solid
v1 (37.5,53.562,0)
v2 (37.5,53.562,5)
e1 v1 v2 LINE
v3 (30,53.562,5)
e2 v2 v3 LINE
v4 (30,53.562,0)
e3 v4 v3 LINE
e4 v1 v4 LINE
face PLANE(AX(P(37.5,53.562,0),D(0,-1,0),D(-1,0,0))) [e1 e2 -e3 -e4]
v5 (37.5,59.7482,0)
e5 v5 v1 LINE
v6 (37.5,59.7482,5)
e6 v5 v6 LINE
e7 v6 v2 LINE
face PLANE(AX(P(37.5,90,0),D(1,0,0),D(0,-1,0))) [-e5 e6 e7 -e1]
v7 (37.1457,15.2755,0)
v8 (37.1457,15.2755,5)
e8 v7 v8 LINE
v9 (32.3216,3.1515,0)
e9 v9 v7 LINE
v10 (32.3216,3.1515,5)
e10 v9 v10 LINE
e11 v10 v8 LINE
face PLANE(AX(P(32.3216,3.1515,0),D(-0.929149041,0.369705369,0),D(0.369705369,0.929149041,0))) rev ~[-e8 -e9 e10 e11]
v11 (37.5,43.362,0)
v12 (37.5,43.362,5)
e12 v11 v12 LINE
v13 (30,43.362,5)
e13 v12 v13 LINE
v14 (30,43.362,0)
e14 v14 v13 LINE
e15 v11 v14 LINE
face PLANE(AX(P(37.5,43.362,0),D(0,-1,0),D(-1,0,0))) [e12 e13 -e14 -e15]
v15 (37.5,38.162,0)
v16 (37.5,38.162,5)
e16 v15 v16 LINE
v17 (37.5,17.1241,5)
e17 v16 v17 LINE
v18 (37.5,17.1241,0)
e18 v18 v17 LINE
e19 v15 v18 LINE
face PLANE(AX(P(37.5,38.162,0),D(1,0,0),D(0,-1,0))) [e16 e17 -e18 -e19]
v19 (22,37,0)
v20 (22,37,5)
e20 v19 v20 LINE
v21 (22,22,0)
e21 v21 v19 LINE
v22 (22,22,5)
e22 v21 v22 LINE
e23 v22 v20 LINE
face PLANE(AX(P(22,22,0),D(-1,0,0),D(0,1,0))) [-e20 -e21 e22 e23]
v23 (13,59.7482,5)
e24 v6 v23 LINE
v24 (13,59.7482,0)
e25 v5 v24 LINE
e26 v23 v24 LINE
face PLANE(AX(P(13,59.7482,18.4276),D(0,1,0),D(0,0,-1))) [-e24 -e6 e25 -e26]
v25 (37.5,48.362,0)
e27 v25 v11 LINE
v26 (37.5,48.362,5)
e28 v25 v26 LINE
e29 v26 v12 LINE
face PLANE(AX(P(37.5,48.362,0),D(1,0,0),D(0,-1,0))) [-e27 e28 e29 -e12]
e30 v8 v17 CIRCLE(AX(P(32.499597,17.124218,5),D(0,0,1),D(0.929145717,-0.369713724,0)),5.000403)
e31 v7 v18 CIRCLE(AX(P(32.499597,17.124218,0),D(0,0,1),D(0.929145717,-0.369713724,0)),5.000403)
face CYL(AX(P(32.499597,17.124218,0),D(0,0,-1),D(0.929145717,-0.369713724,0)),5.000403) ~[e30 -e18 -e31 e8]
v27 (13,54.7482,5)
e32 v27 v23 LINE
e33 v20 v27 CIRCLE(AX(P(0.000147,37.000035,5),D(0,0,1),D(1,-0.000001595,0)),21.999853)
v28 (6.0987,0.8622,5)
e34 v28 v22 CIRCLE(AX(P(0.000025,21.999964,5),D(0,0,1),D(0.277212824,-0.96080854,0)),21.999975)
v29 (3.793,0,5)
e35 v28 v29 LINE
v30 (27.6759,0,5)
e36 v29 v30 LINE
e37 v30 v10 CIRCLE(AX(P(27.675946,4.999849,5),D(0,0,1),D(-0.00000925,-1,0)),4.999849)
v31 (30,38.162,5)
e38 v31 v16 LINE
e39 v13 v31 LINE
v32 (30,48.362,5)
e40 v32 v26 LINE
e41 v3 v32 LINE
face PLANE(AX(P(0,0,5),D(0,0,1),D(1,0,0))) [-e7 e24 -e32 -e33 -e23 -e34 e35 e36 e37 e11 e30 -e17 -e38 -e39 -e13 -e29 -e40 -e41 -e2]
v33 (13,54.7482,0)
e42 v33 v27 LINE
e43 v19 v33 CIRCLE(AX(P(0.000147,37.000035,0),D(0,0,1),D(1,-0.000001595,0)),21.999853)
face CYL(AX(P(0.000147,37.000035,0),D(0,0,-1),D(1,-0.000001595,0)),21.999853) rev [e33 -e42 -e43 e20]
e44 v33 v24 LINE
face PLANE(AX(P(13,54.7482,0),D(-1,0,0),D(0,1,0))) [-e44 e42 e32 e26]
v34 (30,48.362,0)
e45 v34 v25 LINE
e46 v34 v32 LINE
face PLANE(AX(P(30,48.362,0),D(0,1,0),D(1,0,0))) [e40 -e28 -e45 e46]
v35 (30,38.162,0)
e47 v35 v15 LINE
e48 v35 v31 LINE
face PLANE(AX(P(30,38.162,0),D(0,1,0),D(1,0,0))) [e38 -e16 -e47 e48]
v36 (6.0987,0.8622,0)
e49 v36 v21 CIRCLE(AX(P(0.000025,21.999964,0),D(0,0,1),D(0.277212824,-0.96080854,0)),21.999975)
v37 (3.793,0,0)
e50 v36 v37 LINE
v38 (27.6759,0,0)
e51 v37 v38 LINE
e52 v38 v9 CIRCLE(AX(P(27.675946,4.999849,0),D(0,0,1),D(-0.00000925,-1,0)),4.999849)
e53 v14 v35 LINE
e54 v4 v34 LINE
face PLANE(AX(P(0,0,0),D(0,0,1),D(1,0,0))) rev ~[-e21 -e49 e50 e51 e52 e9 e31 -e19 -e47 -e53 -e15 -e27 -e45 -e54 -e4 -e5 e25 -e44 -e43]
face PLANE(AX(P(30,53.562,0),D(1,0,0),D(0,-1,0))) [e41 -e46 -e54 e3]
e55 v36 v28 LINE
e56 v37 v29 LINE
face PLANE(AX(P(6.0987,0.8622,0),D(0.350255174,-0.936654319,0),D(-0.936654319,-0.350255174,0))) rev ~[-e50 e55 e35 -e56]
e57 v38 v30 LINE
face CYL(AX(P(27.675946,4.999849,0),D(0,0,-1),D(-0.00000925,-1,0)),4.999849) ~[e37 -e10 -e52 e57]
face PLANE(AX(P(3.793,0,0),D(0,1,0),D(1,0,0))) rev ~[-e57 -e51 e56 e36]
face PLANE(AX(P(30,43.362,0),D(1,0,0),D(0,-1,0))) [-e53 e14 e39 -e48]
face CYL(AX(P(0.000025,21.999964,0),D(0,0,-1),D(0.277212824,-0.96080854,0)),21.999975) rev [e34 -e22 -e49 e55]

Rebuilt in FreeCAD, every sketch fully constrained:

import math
import FreeCAD as App
import Part
import Sketcher
from FreeCAD import Vector

doc = App.newDocument("Part")
params = doc.addObject("Spreadsheet::Sheet", "Params")
for row, (alias, value) in enumerate([
    ("sketch1_radius", "22 mm"),
    ("sketch1_radius2", "5 mm"),
    ("sketch1_width", "15 mm"),
    ("sketch1_height", "5 mm"),
    ("sketch1_height2", "12 mm"),
    ("pad1_length", "5 mm"),
    ("sketch2_diameter", "3.4 mm"),
    ("hole_diameter", "3.4 mm"),
    ("pocket1_length", "40 mm"),
], start=1):
    params.set(f"A{row}", alias)
    params.set(f"B{row}", "=" + value)
    params.setAlias(f"B{row}", alias)

body = doc.addObject("PartDesign::Body", "Body")

# Sketch on XY plane
sketch1 = body.newObject("Sketcher::SketchObject", "Sketch")
sketch1.AttachmentSupport = (doc.getObject("XY_Plane"), [""])
sketch1.MapMode = "FlatFace"
sketch1.addGeometry([
    Part.ArcOfCircle(Part.Circle(Vector(0, 22, 0), Vector(0, 0, 1), 22), math.radians(-74), math.radians(0)),  # 0
    Part.LineSegment(Vector(6.1, 0.9, 0), Vector(3.8, 0, 0)),  # 1
    Part.LineSegment(Vector(3.8, 0, 0), Vector(27.7, 0, 0)),  # 2
    Part.ArcOfCircle(Part.Circle(Vector(27.7, 5, 0), Vector(0, 0, 1), 5), math.radians(-90), math.radians(-22)),  # 3
    Part.LineSegment(Vector(32.3, 3.2, 0), Vector(37.1, 15.3, 0)),  # 4
    Part.ArcOfCircle(Part.Circle(Vector(32.5, 17.1, 0), Vector(0, 0, 1), 5), math.radians(-22), math.radians(0)),  # 5
    Part.LineSegment(Vector(37.5, 17.1, 0), Vector(37.5, 38.2, 0)),  # 6
    Part.LineSegment(Vector(37.5, 38.2, 0), Vector(30, 38.2, 0)),  # 7
    Part.LineSegment(Vector(30, 38.2, 0), Vector(30, 43.4, 0)),  # 8
    Part.LineSegment(Vector(30, 43.4, 0), Vector(37.5, 43.4, 0)),  # 9
    Part.LineSegment(Vector(37.5, 43.4, 0), Vector(37.5, 48.4, 0)),  # 10
    Part.LineSegment(Vector(37.5, 48.4, 0), Vector(30, 48.4, 0)),  # 11
    Part.LineSegment(Vector(30, 48.4, 0), Vector(30, 53.6, 0)),  # 12
    Part.LineSegment(Vector(30, 53.6, 0), Vector(37.5, 53.6, 0)),  # 13
    Part.LineSegment(Vector(37.5, 53.6, 0), Vector(37.5, 90, 0)),  # 14
    Part.LineSegment(Vector(37.5, 90, 0), Vector(22.5, 90, 0)),  # 15
    Part.LineSegment(Vector(22.5, 90, 0), Vector(22.5, 66.7, 0)),  # 16
    Part.LineSegment(Vector(22.5, 66.7, 0), Vector(13, 66.7, 0)),  # 17
    Part.LineSegment(Vector(13, 66.7, 0), Vector(13, 54.7, 0)),  # 18
    Part.ArcOfCircle(Part.Circle(Vector(0, 37, 0), Vector(0, 0, 1), 22), math.radians(0), math.radians(54)),  # 19
    Part.LineSegment(Vector(22, 37, 0), Vector(22, 22, 0)),  # 20
], False)
sketch1.addConstraint([
    Sketcher.Constraint("Coincident", 0, 1, 1, 1),
    Sketcher.Constraint("Coincident", 1, 2, 2, 1),
    Sketcher.Constraint("Tangent", 2, 2, 3, 1),
    Sketcher.Constraint("Tangent", 3, 2, 4, 1),
    Sketcher.Constraint("Tangent", 4, 2, 5, 1),
    Sketcher.Constraint("Tangent", 5, 2, 6, 1),
    Sketcher.Constraint("Coincident", 6, 2, 7, 1),
    Sketcher.Constraint("Coincident", 7, 2, 8, 1),
    Sketcher.Constraint("Coincident", 8, 2, 9, 1),
    Sketcher.Constraint("Coincident", 9, 2, 10, 1),
    Sketcher.Constraint("Coincident", 10, 2, 11, 1),
    Sketcher.Constraint("Coincident", 11, 2, 12, 1),
    Sketcher.Constraint("Coincident", 12, 2, 13, 1),
    Sketcher.Constraint("Coincident", 13, 2, 14, 1),
    Sketcher.Constraint("Coincident", 14, 2, 15, 1),
    Sketcher.Constraint("Coincident", 15, 2, 16, 1),
    Sketcher.Constraint("Coincident", 16, 2, 17, 1),
    Sketcher.Constraint("Coincident", 17, 2, 18, 1),
    Sketcher.Constraint("Coincident", 18, 2, 19, 2),
    Sketcher.Constraint("Tangent", 19, 1, 20, 1),
    Sketcher.Constraint("Tangent", 20, 2, 0, 2),
    Sketcher.Constraint("Horizontal", 2),
    Sketcher.Constraint("Vertical", 6),
    Sketcher.Constraint("Horizontal", 7),
    Sketcher.Constraint("Vertical", 8),
    Sketcher.Constraint("Horizontal", 9),
    Sketcher.Constraint("Vertical", 10),
    Sketcher.Constraint("Horizontal", 11),
    Sketcher.Constraint("Vertical", 12),
    Sketcher.Constraint("Horizontal", 13),
    Sketcher.Constraint("Vertical", 14),
    Sketcher.Constraint("Horizontal", 15),
    Sketcher.Constraint("Vertical", 16),
    Sketcher.Constraint("Horizontal", 17),
    Sketcher.Constraint("Vertical", 18),
    Sketcher.Constraint("Vertical", 20),
    Sketcher.Constraint("Equal", 3, 5),
    Sketcher.Constraint("Equal", 0, 19),
    Sketcher.Constraint("PointOnObject", 0, 3, -2),
    Sketcher.Constraint("PointOnObject", 1, 2, -1),
    Sketcher.Constraint("Vertical", 6, 2, 9, 2),
    Sketcher.Constraint("Vertical", 8, 2, 11, 2),
    Sketcher.Constraint("Vertical", 10, 2, 13, 2),
    Sketcher.Constraint("Equal", 8, 12),
    Sketcher.Constraint("Equal", 15, 20),
    Sketcher.Constraint("Radius", 0, 22.0),
    Sketcher.Constraint("Radius", 3, 5.0),
    Sketcher.Constraint("DistanceX", 15, 2, 15, 1, 15.0),
    Sketcher.Constraint("DistanceY", 10, 1, 10, 2, 5.0),
    Sketcher.Constraint("DistanceY", 18, 2, 18, 1, 12.0),
    Sketcher.Constraint("DistanceY", 8, 1, 8, 2, 5.2),
    Sketcher.Constraint("DistanceY", -1, 1, 0, 3, 22.0),
    Sketcher.Constraint("DistanceY", -1, 1, 14, 2, 90.0),
    Sketcher.Constraint("DistanceX", -1, 1, 17, 2, 13.0),
    Sketcher.Constraint("DistanceX", -1, 1, 15, 2, 22.5),
    Sketcher.Constraint("DistanceX", 7, 2, 7, 1, 7.5),
    Sketcher.Constraint("DistanceY", 3, 3, 5, 3, 12.124),
    Sketcher.Constraint("DistanceX", 2, 1, 2, 2, 23.883),
    Sketcher.Constraint("DistanceY", 6, 1, 6, 2, 21.038),
    Sketcher.Constraint("DistanceX", -1, 1, 3, 3, 27.676),
    Sketcher.Constraint("DistanceY", 0, 1, 5, 3, 16.262),
])
sketch1.setExpression("Constraints[45]", "Params.sketch1_radius")
sketch1.setExpression("Constraints[46]", "Params.sketch1_radius2")
sketch1.setExpression("Constraints[47]", "Params.sketch1_width")
sketch1.setExpression("Constraints[48]", "Params.sketch1_height")
sketch1.setExpression("Constraints[49]", "Params.sketch1_height2")
pad1 = body.newObject("PartDesign::Pad", "Pad")
pad1.Profile = sketch1
pad1.setExpression("Length", "Params.pad1_length")

# Sketch on XY plane
sketch2 = body.newObject("Sketcher::SketchObject", "Sketch001")
sketch2.AttachmentSupport = (doc.getObject("XY_Plane"), [""])
sketch2.MapMode = "FlatFace"
sketch2.AttachmentOffset = App.Placement(Vector(0, 0, 5), App.Rotation())
sketch2.addGeometry([
    Part.Circle(Vector(30, 86.5, 0), Vector(0, 0, 1), 1.7),
    Part.Circle(Vector(30, 63.5, 0), Vector(0, 0, 1), 1.7),
], False)
sketch2.addConstraint([
    Sketcher.Constraint("Equal", 0, 1),
    Sketcher.Constraint("Vertical", 0, 3, 1, 3),
    Sketcher.Constraint("Diameter", 0, 3.4),
    Sketcher.Constraint("DistanceX", -1, 1, 0, 3, 30.0),
    Sketcher.Constraint("DistanceY", 1, 3, 0, 3, 23.0),
    Sketcher.Constraint("DistanceY", -1, 1, 0, 3, 86.5),
])
sketch2.setExpression("Constraints[2]", "Params.sketch2_diameter")
doc.recompute()
hole = body.newObject("PartDesign::Hole", "Hole")
hole.Profile = sketch2
hole.ThreadType = "None"
hole.setExpression("Diameter", "Params.hole_diameter")
hole.DepthType = "ThroughAll"

# Sketch on YZ plane
sketch3 = body.newObject("Sketcher::SketchObject", "Sketch002")
sketch3.AttachmentSupport = (doc.getObject("YZ_Plane"), [""])
sketch3.MapMode = "FlatFace"
sketch3.AttachmentOffset = App.Placement(Vector(0, 0, 13), App.Rotation())
sketch3.addGeometry([
    Part.LineSegment(Vector(92, 18, 0), Vector(92, -13, 0)),
    Part.LineSegment(Vector(92, -13, 0), Vector(60, -13, 0)),
    Part.LineSegment(Vector(60, -13, 0), Vector(60, 18, 0)),
    Part.LineSegment(Vector(60, 18, 0), Vector(92, 18, 0)),
], False)
sketch3.addConstraint([
    Sketcher.Constraint("Coincident", 0, 2, 1, 1),
    Sketcher.Constraint("Coincident", 1, 2, 2, 1),
    Sketcher.Constraint("Coincident", 2, 2, 3, 1),
    Sketcher.Constraint("Coincident", 3, 2, 0, 1),
    Sketcher.Constraint("Vertical", 0),
    Sketcher.Constraint("Horizontal", 1),
    Sketcher.Constraint("Vertical", 2),
    Sketcher.Constraint("Horizontal", 3),
    Sketcher.Constraint("DistanceY", 0, 2, 0, 1, 31.626),
    Sketcher.Constraint("DistanceX", 1, 2, 1, 1, 31.8887),
    Sketcher.Constraint("DistanceX", -1, 1, 0, 2, 91.637),
    Sketcher.Constraint("DistanceY", 0, 2, -1, 1, 13.1984),
])
pocket1 = body.newObject("PartDesign::Pocket", "Pocket")
pocket1.Profile = sketch3
pocket1.setExpression("Length", "Params.pocket1_length")
pocket1.Reversed = True

doc.recompute()
